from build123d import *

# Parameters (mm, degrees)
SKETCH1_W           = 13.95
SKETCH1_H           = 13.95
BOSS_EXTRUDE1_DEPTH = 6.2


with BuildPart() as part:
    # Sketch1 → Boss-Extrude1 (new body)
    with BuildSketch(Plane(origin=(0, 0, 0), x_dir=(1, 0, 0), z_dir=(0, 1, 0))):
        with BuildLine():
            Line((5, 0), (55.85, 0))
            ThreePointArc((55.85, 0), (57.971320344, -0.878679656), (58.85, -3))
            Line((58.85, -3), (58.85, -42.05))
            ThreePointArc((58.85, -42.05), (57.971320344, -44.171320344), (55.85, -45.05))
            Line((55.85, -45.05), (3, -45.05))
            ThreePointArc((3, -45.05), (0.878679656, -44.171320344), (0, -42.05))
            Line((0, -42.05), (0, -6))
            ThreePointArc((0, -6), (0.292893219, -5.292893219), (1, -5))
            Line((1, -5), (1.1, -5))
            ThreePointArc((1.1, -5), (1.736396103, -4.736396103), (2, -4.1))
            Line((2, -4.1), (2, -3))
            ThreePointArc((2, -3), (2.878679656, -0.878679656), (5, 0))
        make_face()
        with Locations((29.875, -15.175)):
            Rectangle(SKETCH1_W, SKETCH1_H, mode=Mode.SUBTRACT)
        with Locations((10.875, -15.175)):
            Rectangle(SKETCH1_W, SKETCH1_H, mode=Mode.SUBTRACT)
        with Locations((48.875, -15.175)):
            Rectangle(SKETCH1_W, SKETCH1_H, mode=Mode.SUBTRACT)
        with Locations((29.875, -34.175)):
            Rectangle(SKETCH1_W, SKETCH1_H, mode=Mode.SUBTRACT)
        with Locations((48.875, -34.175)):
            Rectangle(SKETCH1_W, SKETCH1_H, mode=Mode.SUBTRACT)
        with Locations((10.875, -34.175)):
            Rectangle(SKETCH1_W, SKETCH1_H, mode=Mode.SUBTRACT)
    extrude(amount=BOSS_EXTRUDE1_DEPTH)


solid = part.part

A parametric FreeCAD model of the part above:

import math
import FreeCAD as App
import Part
import Sketcher

V = App.Vector

doc = App.newDocument("Part")
body = doc.addObject("PartDesign::Body", "Body")

# Sketch on XZ plane
sketch1 = body.newObject("Sketcher::SketchObject", "Sketch")
sketch1.AttachmentSupport = (doc.getObject("XZ_Plane"), [""])
sketch1.MapMode = "FlatFace"
sketch1.addGeometry(Part.LineSegment(V(55.85, 0, 0), V(5, 0, 0)), False)
sketch1.addGeometry(Part.ArcOfCircle(Part.Circle(V(5, 3, 0), V(0, 0, 1), 3), math.radians(180), math.radians(270)), False)
sketch1.addGeometry(Part.LineSegment(V(2, 3, 0), V(2, 4.1, 0)), False)
sketch1.addGeometry(Part.ArcOfCircle(Part.Circle(V(1.1, 4.1, 0), V(0, 0, 1), 0.9), math.radians(0), math.radians(90)), False)
sketch1.addGeometry(Part.LineSegment(V(1.1, 5, 0), V(1, 5, 0)), False)
sketch1.addGeometry(Part.ArcOfCircle(Part.Circle(V(1, 6, 0), V(0, 0, 1), 1), math.radians(-180), math.radians(-90)), False)
sketch1.addGeometry(Part.LineSegment(V(0, 6, 0), V(0, 42.05, 0)), False)
sketch1.addGeometry(Part.ArcOfCircle(Part.Circle(V(3, 42.05, 0), V(0, 0, 1), 3), math.radians(90), math.radians(180)), False)
sketch1.addGeometry(Part.LineSegment(V(3, 45.05, 0), V(55.85, 45.05, 0)), False)
sketch1.addGeometry(Part.ArcOfCircle(Part.Circle(V(55.85, 42.05, 0), V(0, 0, 1), 3), math.radians(0), math.radians(90)), False)
sketch1.addGeometry(Part.LineSegment(V(58.85, 42.05, 0), V(58.85, 3, 0)), False)
sketch1.addGeometry(Part.ArcOfCircle(Part.Circle(V(55.85, 3, 0), V(0, 0, 1), 3), math.radians(-90), math.radians(0)), False)
sketch1.addGeometry(Part.LineSegment(V(41.9, 41.15, 0), V(41.9, 27.2, 0)), False)
sketch1.addGeometry(Part.LineSegment(V(41.9, 27.2, 0), V(55.85, 27.2, 0)), False)
sketch1.addGeometry(Part.LineSegment(V(55.85, 27.2, 0), V(55.85, 41.15, 0)), False)
sketch1.addGeometry(Part.LineSegment(V(55.85, 41.15, 0), V(41.9, 41.15, 0)), False)
sketch1.addGeometry(Part.LineSegment(V(22.9, 41.15, 0), V(22.9, 27.2, 0)), False)
sketch1.addGeometry(Part.LineSegment(V(22.9, 27.2, 0), V(36.85, 27.2, 0)), False)
sketch1.addGeometry(Part.LineSegment(V(36.85, 27.2, 0), V(36.85, 41.15, 0)), False)
sketch1.addGeometry(Part.LineSegment(V(36.85, 41.15, 0), V(22.9, 41.15, 0)), False)
sketch1.addGeometry(Part.LineSegment(V(3.9, 41.15, 0), V(3.9, 27.2, 0)), False)
sketch1.addGeometry(Part.LineSegment(V(3.9, 27.2, 0), V(17.85, 27.2, 0)), False)
sketch1.addGeometry(Part.LineSegment(V(17.85, 27.2, 0), V(17.85, 41.15, 0)), False)
sketch1.addGeometry(Part.LineSegment(V(17.85, 41.15, 0), V(3.9, 41.15, 0)), False)
sketch1.addGeometry(Part.LineSegment(V(41.9, 22.15, 0), V(41.9, 8.2, 0)), False)
sketch1.addGeometry(Part.LineSegment(V(41.9, 8.2, 0), V(55.85, 8.2, 0)), False)
sketch1.addGeometry(Part.LineSegment(V(55.85, 8.2, 0), V(55.85, 22.15, 0)), False)
sketch1.addGeometry(Part.LineSegment(V(55.85, 22.15, 0), V(41.9, 22.15, 0)), False)
sketch1.addGeometry(Part.LineSegment(V(22.9, 22.15, 0), V(22.9, 8.2, 0)), False)
sketch1.addGeometry(Part.LineSegment(V(22.9, 8.2, 0), V(36.85, 8.2, 0)), False)
sketch1.addGeometry(Part.LineSegment(V(36.85, 8.2, 0), V(36.85, 22.15, 0)), False)
sketch1.addGeometry(Part.LineSegment(V(36.85, 22.15, 0), V(22.9, 22.15, 0)), False)
sketch1.addGeometry(Part.LineSegment(V(3.9, 22.15, 0), V(3.9, 8.2, 0)), False)
sketch1.addGeometry(Part.LineSegment(V(3.9, 8.2, 0), V(17.85, 8.2, 0)), False)
sketch1.addGeometry(Part.LineSegment(V(17.85, 8.2, 0), V(17.85, 22.15, 0)), False)
sketch1.addGeometry(Part.LineSegment(V(17.85, 22.15, 0), V(3.9, 22.15, 0)), False)
sketch1.addConstraint(Sketcher.Constraint("Tangent", 0, 2, 1, 2))
sketch1.addConstraint(Sketcher.Constraint("Tangent", 1, 1, 2, 1))
sketch1.addConstraint(Sketcher.Constraint("Tangent", 2, 2, 3, 1))
sketch1.addConstraint(Sketcher.Constraint("Tangent", 3, 2, 4, 1))
sketch1.addConstraint(Sketcher.Constraint("Tangent", 4, 2, 5, 2))
sketch1.addConstraint(Sketcher.Constraint("Tangent", 5, 1, 6, 1))
sketch1.addConstraint(Sketcher.Constraint("Tangent", 6, 2, 7, 2))
sketch1.addConstraint(Sketcher.Constraint("Tangent", 7, 1, 8, 1))
sketch1.addConstraint(Sketcher.Constraint("Tangent", 8, 2, 9, 2))
sketch1.addConstraint(Sketcher.Constraint("Tangent", 9, 1, 10, 1))
sketch1.addConstraint(Sketcher.Constraint("Tangent", 10, 2, 11, 2))
sketch1.addConstraint(Sketcher.Constraint("Tangent", 11, 1, 0, 1))
sketch1.addConstraint(Sketcher.Constraint("Coincident", 12, 2, 13, 1))
sketch1.addConstraint(Sketcher.Constraint("Coincident", 13, 2, 14, 1))
sketch1.addConstraint(Sketcher.Constraint("Coincident", 14, 2, 15, 1))
sketch1.addConstraint(Sketcher.Constraint("Coincident", 15, 2, 12, 1))
sketch1.addConstraint(Sketcher.Constraint("Coincident", 16, 2, 17, 1))
sketch1.addConstraint(Sketcher.Constraint("Coincident", 17, 2, 18, 1))
sketch1.addConstraint(Sketcher.Constraint("Coincident", 18, 2, 19, 1))
sketch1.addConstraint(Sketcher.Constraint("Coincident", 19, 2, 16, 1))
sketch1.addConstraint(Sketcher.Constraint("Coincident", 20, 2, 21, 1))
sketch1.addConstraint(Sketcher.Constraint("Coincident", 21, 2, 22, 1))
sketch1.addConstraint(Sketcher.Constraint("Coincident", 22, 2, 23, 1))
sketch1.addConstraint(Sketcher.Constraint("Coincident", 23, 2, 20, 1))
sketch1.addConstraint(Sketcher.Constraint("Coincident", 24, 2, 25, 1))
sketch1.addConstraint(Sketcher.Constraint("Coincident", 25, 2, 26, 1))
sketch1.addConstraint(Sketcher.Constraint("Coincident", 26, 2, 27, 1))
sketch1.addConstraint(Sketcher.Constraint("Coincident", 27, 2, 24, 1))
sketch1.addConstraint(Sketcher.Constraint("Coincident", 28, 2, 29, 1))
sketch1.addConstraint(Sketcher.Constraint("Coincident", 29, 2, 30, 1))
sketch1.addConstraint(Sketcher.Constraint("Coincident", 30, 2, 31, 1))
sketch1.addConstraint(Sketcher.Constraint("Coincident", 31, 2, 28, 1))
sketch1.addConstraint(Sketcher.Constraint("Coincident", 32, 2, 33, 1))
sketch1.addConstraint(Sketcher.Constraint("Coincident", 33, 2, 34, 1))
sketch1.addConstraint(Sketcher.Constraint("Coincident", 34, 2, 35, 1))
sketch1.addConstraint(Sketcher.Constraint("Coincident", 35, 2, 32, 1))
sketch1.addConstraint(Sketcher.Constraint("Horizontal", 0))
sketch1.addConstraint(Sketcher.Constraint("Vertical", 2))
sketch1.addConstraint(Sketcher.Constraint("Horizontal", 4))
sketch1.addConstraint(Sketcher.Constraint("Vertical", 6))
sketch1.addConstraint(Sketcher.Constraint("Horizontal", 8))
sketch1.addConstraint(Sketcher.Constraint("Vertical", 10))
sketch1.addConstraint(Sketcher.Constraint("Vertical", 12))
sketch1.addConstraint(Sketcher.Constraint("Horizontal", 13))
sketch1.addConstraint(Sketcher.Constraint("Vertical", 14))
sketch1.addConstraint(Sketcher.Constraint("Horizontal", 15))
sketch1.addConstraint(Sketcher.Constraint("Vertical", 16))
sketch1.addConstraint(Sketcher.Constraint("Horizontal", 17))
sketch1.addConstraint(Sketcher.Constraint("Vertical", 18))
sketch1.addConstraint(Sketcher.Constraint("Horizontal", 19))
sketch1.addConstraint(Sketcher.Constraint("Vertical", 20))
sketch1.addConstraint(Sketcher.Constraint("Horizontal", 21))
sketch1.addConstraint(Sketcher.Constraint("Vertical", 22))
sketch1.addConstraint(Sketcher.Constraint("Horizontal", 23))
sketch1.addConstraint(Sketcher.Constraint("Vertical", 24))
sketch1.addConstraint(Sketcher.Constraint("Horizontal", 25))
sketch1.addConstraint(Sketcher.Constraint("Vertical", 26))
sketch1.addConstraint(Sketcher.Constraint("Horizontal", 27))
sketch1.addConstraint(Sketcher.Constraint("Vertical", 28))
sketch1.addConstraint(Sketcher.Constraint("Horizontal", 29))
sketch1.addConstraint(Sketcher.Constraint("Vertical", 30))
sketch1.addConstraint(Sketcher.Constraint("Horizontal", 31))
sketch1.addConstraint(Sketcher.Constraint("Vertical", 32))
sketch1.addConstraint(Sketcher.Constraint("Horizontal", 33))
sketch1.addConstraint(Sketcher.Constraint("Vertical", 34))
sketch1.addConstraint(Sketcher.Constraint("Horizontal", 35))
sketch1.addConstraint(Sketcher.Constraint("Equal", 1, 7))
sketch1.addConstraint(Sketcher.Constraint("Equal", 7, 9))
sketch1.addConstraint(Sketcher.Constraint("Equal", 9, 11))
sketch1.addConstraint(Sketcher.Constraint("PointOnObject", 0, 2, -1))
sketch1.addConstraint(Sketcher.Constraint("PointOnObject", 5, 1, -2))
sketch1.addConstraint(Sketcher.Constraint("Horizontal", 13, 2, 16, 2))
sketch1.addConstraint(Sketcher.Constraint("Horizontal", 15, 2, 18, 2))
sketch1.addConstraint(Sketcher.Constraint("Horizontal", 17, 2, 20, 2))
sketch1.addConstraint(Sketcher.Constraint("Horizontal", 19, 2, 22, 2))
sketch1.addConstraint(Sketcher.Constraint("Horizontal", 25, 2, 28, 2))
sketch1.addConstraint(Sketcher.Constraint("Horizontal", 27, 2, 30, 2))
sketch1.addConstraint(Sketcher.Constraint("Horizontal", 29, 2, 32, 2))
sketch1.addConstraint(Sketcher.Constraint("Horizontal", 31, 2, 34, 2))
sketch1.addConstraint(Sketcher.Constraint("Vertical", 11, 1, 13, 2))
sketch1.addConstraint(Sketcher.Constraint("Vertical", 15, 2, 24, 2))
sketch1.addConstraint(Sketcher.Constraint("Vertical", 14, 2, 25, 2))
sketch1.addConstraint(Sketcher.Constraint("Vertical", 19, 2, 28, 2))
sketch1.addConstraint(Sketcher.Constraint("Vertical", 18, 2, 29, 2))
sketch1.addConstraint(Sketcher.Constraint("Vertical", 23, 2, 32, 2))
sketch1.addConstraint(Sketcher.Constraint("Vertical", 22, 2, 33, 2))
sketch1.addConstraint(Sketcher.Constraint("Equal", 15, 17))
sketch1.addConstraint(Sketcher.Constraint("Equal", 19, 21))
sketch1.addConstraint(Sketcher.Constraint("Equal", 35, 12))
sketch1.addConstraint(Sketcher.Constraint("Equal", 22, 24))
sketch1.addConstraint(Sketcher.Constraint("Radius", 1, 3.0))
sketch1.addConstraint(Sketcher.Constraint("Radius", 5, 1.0))
sketch1.addConstraint(Sketcher.Constraint("Radius", 3, 0.9))
sketch1.addConstraint(Sketcher.Constraint("DistanceX", 4, 2, 4, 1, 0.1))
sketch1.addConstraint(Sketcher.Constraint("DistanceY", 2, 1, 2, 2, 1.1))
sketch1.addConstraint(Sketcher.Constraint("DistanceX", 16, 2, 12, 2, 19.0))
sketch1.addConstraint(Sketcher.Constraint("DistanceX", 20, 2, 16, 2, 19.0))
sketch1.addConstraint(Sketcher.Constraint("DistanceY", 24, 2, 12, 2, 19.0))
sketch1.addConstraint(Sketcher.Constraint("DistanceX", 0, 2, 0, 1, 50.85))
sketch1.addConstraint(Sketcher.Constraint("DistanceX", 13, 1, 13, 2, 13.95))
sketch1.addConstraint(Sketcher.Constraint("DistanceY", 6, 1, 6, 2, 36.05))
sketch1.addConstraint(Sketcher.Constraint("DistanceY", -1, 1, 12, 2, 27.2))
pad1 = body.newObject("PartDesign::Pad", "Pad")
pad1.Profile = sketch1
pad1.Length = 6.2
pad1.Reversed = True

doc.recompute()
